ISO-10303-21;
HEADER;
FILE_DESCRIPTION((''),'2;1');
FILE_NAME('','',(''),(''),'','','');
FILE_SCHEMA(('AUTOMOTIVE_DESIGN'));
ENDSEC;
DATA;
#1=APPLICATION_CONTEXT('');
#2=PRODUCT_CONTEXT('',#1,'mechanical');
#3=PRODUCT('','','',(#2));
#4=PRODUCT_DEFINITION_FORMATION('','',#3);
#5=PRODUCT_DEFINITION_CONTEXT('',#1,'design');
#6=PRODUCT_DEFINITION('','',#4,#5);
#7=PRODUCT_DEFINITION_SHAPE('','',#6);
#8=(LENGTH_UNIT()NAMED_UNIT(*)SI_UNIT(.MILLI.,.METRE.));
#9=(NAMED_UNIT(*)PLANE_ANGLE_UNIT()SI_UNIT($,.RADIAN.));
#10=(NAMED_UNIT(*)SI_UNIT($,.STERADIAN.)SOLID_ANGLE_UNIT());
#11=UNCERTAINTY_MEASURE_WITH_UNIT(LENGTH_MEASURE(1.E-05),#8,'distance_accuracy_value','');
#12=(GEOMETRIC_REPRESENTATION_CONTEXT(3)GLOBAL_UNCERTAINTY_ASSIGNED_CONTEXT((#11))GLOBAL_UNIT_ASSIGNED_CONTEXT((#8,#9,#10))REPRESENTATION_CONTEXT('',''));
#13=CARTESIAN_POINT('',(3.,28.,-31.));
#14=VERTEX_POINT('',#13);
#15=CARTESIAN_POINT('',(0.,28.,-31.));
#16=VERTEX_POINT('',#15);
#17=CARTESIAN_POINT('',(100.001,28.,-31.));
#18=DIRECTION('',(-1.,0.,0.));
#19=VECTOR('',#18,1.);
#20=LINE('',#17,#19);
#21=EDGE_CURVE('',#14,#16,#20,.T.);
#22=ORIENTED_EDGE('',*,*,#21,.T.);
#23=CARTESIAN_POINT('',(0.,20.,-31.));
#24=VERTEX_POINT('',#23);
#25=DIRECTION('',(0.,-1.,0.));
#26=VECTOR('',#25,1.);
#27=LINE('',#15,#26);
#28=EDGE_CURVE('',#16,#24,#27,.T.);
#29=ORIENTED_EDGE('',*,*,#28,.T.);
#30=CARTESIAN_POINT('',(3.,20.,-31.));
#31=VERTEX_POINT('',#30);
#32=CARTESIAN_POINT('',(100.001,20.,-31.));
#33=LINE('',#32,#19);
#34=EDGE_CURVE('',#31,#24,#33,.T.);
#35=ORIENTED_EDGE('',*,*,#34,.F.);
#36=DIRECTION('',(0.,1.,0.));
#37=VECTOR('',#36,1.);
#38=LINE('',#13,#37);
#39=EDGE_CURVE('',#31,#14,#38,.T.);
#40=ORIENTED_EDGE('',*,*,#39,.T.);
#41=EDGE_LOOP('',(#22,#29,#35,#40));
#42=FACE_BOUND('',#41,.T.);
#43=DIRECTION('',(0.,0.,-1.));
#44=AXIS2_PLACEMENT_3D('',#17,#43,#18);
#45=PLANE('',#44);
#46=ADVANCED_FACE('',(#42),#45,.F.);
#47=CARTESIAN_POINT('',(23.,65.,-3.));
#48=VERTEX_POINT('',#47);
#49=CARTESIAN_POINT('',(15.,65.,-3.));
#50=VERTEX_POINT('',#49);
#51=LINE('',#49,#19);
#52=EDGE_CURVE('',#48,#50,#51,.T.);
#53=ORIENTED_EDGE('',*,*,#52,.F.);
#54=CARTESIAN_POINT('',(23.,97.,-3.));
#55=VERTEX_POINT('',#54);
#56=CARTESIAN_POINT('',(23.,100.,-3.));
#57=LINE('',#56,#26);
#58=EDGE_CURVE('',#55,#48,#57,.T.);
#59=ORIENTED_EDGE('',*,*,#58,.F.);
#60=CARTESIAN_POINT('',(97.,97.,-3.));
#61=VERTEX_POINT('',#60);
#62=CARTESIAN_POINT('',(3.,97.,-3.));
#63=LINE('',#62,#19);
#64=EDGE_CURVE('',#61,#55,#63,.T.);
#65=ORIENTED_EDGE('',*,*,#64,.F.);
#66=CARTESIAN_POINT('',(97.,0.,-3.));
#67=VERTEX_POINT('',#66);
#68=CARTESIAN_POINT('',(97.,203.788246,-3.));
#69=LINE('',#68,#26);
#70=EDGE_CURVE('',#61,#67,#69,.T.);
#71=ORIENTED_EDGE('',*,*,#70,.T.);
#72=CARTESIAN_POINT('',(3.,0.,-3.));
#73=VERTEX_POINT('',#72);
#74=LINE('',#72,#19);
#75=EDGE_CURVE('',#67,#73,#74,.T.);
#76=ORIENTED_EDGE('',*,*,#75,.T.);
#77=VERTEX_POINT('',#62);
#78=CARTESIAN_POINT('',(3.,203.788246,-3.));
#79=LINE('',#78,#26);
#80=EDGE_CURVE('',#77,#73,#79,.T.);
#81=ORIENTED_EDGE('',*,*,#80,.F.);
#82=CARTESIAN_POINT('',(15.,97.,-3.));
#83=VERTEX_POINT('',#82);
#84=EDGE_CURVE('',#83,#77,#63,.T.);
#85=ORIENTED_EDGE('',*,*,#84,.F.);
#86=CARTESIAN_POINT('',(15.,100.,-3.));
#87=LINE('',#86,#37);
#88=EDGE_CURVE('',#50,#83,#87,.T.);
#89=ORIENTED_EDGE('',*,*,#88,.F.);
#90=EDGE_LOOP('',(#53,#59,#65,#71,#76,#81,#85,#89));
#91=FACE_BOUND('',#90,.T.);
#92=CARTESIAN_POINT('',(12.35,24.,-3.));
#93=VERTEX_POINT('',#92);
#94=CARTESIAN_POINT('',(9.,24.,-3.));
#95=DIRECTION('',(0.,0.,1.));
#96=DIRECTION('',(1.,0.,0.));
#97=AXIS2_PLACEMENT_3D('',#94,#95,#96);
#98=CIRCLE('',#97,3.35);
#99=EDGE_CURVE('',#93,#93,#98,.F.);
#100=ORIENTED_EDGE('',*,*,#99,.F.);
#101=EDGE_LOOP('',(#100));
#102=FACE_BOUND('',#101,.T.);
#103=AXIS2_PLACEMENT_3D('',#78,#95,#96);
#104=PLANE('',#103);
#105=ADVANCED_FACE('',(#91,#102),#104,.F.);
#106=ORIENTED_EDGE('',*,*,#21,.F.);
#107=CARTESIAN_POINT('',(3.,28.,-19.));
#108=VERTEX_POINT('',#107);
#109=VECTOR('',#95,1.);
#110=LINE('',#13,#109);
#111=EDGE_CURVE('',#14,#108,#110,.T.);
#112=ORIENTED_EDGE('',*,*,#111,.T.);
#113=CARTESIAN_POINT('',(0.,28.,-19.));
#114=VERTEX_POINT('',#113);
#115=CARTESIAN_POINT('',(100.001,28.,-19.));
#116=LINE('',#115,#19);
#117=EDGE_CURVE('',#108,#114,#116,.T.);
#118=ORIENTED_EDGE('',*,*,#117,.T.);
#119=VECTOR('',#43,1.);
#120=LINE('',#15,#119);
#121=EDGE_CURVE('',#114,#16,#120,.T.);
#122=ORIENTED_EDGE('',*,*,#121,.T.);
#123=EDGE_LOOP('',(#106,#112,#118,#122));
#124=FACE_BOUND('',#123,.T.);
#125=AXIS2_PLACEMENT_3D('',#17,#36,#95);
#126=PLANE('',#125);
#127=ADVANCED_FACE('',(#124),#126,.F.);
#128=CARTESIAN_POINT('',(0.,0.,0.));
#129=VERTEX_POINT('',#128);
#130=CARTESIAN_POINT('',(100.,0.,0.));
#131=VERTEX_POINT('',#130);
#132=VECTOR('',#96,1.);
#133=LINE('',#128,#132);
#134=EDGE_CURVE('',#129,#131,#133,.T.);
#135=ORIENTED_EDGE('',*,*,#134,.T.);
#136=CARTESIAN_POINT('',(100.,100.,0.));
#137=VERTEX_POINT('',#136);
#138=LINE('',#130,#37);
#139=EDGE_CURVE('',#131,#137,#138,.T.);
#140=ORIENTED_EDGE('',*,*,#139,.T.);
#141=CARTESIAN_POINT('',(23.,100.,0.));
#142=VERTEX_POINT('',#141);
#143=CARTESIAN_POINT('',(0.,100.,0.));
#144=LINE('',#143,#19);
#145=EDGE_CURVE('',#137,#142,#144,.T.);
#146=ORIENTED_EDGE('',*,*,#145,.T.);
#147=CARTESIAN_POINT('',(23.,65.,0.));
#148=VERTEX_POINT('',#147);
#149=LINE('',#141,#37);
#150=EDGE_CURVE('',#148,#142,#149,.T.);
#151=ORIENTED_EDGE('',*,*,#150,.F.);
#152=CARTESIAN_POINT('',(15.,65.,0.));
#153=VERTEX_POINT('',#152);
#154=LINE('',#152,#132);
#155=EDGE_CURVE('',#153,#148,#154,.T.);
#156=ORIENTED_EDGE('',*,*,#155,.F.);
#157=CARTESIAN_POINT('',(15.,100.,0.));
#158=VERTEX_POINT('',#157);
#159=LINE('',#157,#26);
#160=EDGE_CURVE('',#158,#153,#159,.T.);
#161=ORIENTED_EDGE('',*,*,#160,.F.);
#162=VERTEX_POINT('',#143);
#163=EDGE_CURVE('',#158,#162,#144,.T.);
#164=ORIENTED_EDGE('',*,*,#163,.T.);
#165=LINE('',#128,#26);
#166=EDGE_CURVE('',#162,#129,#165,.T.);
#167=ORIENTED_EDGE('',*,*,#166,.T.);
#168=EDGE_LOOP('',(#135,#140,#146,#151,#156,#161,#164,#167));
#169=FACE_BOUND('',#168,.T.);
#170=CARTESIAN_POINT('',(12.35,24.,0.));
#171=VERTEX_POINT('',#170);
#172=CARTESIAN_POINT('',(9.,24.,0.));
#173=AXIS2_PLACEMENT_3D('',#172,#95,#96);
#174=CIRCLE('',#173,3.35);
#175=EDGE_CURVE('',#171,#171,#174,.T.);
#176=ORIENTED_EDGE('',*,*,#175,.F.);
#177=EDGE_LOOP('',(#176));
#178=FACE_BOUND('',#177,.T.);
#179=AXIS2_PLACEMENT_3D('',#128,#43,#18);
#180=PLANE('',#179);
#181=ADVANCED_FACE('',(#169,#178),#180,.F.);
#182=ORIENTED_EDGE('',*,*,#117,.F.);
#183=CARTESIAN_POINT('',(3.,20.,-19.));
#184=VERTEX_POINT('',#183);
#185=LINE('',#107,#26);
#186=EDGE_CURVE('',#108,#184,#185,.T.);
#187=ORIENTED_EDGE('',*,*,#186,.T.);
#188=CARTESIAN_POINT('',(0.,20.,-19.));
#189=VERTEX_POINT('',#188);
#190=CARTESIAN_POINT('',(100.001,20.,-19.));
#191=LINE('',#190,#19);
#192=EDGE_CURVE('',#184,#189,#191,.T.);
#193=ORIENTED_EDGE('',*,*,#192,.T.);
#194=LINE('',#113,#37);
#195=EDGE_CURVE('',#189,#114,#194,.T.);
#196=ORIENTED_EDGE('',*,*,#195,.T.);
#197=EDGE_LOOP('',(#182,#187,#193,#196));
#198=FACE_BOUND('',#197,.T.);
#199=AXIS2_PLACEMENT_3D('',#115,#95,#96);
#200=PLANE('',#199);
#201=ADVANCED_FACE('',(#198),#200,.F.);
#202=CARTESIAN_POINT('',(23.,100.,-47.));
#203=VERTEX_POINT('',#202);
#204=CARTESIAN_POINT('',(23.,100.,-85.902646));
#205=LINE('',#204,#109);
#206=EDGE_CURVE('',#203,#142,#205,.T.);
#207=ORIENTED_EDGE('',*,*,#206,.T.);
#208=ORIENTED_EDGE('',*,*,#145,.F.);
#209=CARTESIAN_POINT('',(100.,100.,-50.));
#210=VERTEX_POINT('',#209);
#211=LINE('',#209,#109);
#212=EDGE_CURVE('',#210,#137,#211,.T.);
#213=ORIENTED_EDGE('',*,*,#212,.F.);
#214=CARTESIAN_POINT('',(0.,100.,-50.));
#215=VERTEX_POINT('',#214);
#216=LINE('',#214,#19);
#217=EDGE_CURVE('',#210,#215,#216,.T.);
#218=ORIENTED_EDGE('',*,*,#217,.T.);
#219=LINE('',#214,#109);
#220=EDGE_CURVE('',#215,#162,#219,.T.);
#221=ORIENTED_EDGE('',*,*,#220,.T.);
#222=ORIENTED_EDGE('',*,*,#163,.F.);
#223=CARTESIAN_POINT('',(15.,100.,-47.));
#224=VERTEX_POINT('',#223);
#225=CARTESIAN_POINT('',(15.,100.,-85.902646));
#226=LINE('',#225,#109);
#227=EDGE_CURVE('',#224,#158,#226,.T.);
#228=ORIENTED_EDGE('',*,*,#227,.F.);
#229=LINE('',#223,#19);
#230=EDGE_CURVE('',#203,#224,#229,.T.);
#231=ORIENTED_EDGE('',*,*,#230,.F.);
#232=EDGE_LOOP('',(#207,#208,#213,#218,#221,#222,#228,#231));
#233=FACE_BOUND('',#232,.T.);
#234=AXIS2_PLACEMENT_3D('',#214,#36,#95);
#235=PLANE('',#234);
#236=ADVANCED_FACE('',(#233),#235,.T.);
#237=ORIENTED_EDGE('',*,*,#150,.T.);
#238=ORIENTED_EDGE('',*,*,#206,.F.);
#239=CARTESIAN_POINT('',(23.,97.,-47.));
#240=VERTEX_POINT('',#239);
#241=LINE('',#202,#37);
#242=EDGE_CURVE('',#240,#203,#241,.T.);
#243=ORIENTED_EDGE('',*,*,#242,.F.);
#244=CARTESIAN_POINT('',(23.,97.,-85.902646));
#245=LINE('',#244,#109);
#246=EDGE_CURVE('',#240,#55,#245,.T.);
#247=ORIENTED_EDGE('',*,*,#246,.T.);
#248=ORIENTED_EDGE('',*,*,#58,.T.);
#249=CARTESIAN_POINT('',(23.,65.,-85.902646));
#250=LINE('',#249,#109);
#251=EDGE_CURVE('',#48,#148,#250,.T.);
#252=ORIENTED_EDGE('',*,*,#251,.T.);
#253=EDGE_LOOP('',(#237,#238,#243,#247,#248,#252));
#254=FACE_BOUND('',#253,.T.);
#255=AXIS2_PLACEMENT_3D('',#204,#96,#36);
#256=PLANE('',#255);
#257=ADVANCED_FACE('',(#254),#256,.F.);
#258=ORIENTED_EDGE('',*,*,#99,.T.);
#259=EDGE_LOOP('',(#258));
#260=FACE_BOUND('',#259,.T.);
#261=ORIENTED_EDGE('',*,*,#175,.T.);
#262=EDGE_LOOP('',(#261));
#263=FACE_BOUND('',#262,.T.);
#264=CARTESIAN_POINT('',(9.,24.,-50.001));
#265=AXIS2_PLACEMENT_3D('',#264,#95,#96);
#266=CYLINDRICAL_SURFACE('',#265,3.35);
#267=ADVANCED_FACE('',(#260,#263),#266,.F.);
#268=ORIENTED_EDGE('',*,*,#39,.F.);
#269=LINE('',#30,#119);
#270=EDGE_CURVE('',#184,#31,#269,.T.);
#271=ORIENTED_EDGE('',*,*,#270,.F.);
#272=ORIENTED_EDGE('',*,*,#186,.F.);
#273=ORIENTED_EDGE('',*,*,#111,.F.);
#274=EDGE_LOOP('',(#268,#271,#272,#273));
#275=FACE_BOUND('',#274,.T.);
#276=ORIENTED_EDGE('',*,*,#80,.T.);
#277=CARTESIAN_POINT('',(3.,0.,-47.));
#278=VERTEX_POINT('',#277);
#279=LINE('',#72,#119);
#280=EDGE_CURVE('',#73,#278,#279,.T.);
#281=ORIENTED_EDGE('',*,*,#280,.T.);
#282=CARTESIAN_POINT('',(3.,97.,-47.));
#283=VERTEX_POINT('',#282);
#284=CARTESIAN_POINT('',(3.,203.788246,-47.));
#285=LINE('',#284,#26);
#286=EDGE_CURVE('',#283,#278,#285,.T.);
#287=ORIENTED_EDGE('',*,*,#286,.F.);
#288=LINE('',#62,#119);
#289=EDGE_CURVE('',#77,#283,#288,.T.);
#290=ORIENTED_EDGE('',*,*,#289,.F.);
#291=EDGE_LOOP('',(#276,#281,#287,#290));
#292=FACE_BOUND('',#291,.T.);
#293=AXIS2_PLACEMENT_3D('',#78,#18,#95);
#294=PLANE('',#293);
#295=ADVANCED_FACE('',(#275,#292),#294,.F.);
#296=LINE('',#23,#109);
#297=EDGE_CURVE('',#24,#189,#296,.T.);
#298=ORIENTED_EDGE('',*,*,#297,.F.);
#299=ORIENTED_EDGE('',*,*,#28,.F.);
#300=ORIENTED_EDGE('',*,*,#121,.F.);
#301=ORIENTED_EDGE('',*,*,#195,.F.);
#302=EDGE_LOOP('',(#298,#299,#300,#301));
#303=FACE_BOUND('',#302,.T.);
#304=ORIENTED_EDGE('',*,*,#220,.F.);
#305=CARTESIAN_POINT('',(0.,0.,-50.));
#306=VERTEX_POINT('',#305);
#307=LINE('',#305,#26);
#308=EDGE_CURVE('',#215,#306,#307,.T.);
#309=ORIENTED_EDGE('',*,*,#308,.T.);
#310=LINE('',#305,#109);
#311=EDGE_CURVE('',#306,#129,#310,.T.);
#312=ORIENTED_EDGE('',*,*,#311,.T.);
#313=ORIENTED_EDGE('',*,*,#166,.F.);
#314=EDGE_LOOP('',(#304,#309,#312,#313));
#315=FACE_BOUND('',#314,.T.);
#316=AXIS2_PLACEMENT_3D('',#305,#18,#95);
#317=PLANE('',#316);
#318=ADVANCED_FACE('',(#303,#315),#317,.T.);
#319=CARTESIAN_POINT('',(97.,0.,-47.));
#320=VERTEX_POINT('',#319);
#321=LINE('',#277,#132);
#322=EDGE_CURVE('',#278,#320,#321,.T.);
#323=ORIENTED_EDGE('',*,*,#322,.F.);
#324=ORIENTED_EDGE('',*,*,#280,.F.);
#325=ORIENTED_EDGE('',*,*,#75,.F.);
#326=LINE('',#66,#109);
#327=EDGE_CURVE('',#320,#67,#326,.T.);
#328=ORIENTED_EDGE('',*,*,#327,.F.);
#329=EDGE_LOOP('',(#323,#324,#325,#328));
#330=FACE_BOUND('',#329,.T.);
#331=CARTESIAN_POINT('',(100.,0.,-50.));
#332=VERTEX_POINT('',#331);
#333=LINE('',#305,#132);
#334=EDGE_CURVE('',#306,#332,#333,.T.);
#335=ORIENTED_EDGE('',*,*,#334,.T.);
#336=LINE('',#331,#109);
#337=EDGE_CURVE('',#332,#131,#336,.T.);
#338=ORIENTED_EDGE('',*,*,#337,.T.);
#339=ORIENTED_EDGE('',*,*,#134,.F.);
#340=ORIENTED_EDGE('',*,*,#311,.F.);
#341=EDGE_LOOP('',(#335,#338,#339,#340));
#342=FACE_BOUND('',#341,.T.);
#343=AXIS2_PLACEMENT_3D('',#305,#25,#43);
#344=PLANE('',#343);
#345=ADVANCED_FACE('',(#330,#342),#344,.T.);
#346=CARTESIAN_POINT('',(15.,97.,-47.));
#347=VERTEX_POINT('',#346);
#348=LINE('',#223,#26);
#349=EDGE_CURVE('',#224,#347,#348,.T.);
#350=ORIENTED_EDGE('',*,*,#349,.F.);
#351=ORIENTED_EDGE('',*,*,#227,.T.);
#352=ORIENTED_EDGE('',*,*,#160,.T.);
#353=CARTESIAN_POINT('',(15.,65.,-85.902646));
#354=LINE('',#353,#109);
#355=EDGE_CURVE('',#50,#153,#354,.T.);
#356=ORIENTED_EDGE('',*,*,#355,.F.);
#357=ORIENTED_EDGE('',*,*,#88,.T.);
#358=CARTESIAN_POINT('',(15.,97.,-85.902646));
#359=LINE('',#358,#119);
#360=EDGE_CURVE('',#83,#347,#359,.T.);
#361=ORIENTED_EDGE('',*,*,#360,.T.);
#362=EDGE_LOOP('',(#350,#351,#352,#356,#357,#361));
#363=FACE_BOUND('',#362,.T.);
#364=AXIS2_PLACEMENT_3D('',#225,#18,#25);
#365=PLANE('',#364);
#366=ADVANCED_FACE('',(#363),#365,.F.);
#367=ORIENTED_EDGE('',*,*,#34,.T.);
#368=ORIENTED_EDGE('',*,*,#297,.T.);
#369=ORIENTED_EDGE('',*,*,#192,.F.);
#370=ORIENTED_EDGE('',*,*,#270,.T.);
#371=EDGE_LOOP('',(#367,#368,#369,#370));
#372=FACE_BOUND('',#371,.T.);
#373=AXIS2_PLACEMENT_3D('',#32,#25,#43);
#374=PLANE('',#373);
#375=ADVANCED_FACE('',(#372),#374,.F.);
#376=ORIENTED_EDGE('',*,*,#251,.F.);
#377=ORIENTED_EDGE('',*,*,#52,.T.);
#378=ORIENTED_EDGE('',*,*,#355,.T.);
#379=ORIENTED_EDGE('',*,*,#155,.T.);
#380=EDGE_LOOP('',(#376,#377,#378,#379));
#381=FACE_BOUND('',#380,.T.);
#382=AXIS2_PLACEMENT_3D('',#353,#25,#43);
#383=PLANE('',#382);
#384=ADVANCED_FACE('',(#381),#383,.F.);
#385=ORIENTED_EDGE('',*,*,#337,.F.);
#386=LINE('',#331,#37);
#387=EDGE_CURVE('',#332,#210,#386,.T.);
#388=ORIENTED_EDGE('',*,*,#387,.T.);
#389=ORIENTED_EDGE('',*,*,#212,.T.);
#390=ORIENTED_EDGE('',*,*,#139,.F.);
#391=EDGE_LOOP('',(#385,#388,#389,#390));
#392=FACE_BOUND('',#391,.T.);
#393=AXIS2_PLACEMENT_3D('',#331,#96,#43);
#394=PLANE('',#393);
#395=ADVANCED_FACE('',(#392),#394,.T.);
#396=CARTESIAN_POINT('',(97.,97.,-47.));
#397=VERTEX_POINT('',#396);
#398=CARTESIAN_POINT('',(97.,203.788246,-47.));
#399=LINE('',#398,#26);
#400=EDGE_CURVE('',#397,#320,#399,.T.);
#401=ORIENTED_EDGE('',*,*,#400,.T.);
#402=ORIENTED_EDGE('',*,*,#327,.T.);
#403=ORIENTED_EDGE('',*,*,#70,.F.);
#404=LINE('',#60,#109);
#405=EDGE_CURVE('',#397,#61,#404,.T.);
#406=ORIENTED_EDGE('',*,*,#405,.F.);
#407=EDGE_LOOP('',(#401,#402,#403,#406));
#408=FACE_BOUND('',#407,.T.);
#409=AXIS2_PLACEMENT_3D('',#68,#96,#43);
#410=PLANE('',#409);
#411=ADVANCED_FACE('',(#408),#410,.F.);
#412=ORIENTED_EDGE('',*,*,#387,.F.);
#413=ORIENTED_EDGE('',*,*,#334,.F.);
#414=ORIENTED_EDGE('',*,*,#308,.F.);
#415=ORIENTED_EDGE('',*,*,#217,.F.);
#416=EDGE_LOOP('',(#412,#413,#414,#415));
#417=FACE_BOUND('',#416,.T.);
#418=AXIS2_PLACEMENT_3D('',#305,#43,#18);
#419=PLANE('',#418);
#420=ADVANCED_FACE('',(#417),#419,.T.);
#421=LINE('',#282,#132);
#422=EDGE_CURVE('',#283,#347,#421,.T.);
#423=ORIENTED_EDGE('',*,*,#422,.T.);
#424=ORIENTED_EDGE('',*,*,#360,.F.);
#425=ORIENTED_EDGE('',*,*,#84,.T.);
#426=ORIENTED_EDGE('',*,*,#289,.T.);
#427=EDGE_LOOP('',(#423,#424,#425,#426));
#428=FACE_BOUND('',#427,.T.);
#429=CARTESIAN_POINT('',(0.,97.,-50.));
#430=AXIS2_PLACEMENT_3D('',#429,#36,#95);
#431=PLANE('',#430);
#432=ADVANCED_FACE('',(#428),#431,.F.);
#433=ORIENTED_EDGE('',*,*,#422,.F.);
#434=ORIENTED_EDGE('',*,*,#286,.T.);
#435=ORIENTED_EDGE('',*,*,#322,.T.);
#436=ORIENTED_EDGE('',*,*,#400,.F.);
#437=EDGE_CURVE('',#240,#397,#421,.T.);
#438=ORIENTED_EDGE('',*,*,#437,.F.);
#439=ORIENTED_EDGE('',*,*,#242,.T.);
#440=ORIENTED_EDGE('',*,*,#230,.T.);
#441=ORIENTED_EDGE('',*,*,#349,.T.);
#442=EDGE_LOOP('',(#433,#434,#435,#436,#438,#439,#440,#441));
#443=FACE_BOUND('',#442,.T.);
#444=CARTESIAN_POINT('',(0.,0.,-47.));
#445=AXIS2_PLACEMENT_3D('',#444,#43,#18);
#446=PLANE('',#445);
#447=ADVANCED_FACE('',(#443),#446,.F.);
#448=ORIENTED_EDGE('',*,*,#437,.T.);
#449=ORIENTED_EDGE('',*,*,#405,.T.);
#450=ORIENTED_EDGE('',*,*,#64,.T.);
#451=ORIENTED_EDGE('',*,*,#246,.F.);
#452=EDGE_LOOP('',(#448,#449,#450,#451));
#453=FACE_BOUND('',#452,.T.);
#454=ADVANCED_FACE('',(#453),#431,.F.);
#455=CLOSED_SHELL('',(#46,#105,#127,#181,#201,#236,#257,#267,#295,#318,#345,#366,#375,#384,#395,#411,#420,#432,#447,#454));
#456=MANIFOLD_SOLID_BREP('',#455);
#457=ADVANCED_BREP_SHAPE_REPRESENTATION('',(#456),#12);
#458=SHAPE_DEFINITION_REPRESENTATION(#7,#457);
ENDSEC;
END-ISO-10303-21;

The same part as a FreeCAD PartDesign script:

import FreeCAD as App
import Part
import Sketcher
from FreeCAD import Vector
Q = App.Units.Quantity


def add_polygon(sketch, points):
    """Adds a closed chain of lines whose ends are joined by coincident constraints."""
    first, n = sketch.GeometryCount, len(points)
    for a, b in zip(points, points[1:] + points[:1]):
        sketch.addGeometry(Part.LineSegment(App.Vector(*a, 0), App.Vector(*b, 0)), False)
    for i in range(n):
        sketch.addConstraint(Sketcher.Constraint("Coincident", first + i, 2, first + (i + 1) % n, 1))

doc = App.newDocument("Part")
body = doc.addObject("PartDesign::Body", "Body")

# Sketch on XY plane
sketch1 = body.newObject("Sketcher::SketchObject", "Sketch")
sketch1.AttachmentSupport = (doc.getObject("XY_Plane"), [""])
sketch1.MapMode = "FlatFace"
add_polygon(sketch1, [(0, 100), (0, 0), (100, 0), (100, 100)])  # lines 0-3
sketch1.addConstraint(Sketcher.Constraint("Vertical", 0))
sketch1.addConstraint(Sketcher.Constraint("Horizontal", 1))
sketch1.addConstraint(Sketcher.Constraint("Vertical", 2))
sketch1.addConstraint(Sketcher.Constraint("Horizontal", 3))
sketch1.addConstraint(Sketcher.Constraint("Coincident", 0, 2, -1, 1))
sketch1.addConstraint(Sketcher.Constraint("Equal", 3, 0))
sketch1.addConstraint(Sketcher.Constraint("DistanceX", 1, 1, 1, 2, Q("100 mm")))
pad1 = body.newObject("PartDesign::Pad", "Pad")
pad1.Profile = sketch1
pad1.Length = 50
pad1.Reversed = True

# Sketch on XY plane
sketch2 = body.newObject("Sketcher::SketchObject", "Sketch001")
sketch2.AttachmentSupport = (doc.getObject("XY_Plane"), [""])
sketch2.MapMode = "FlatFace"
add_polygon(sketch2, [(15, 100), (15, 65), (23, 65), (23, 100)])  # lines 0-3
sketch2.addConstraint(Sketcher.Constraint("Vertical", 0))
sketch2.addConstraint(Sketcher.Constraint("Horizontal", 1))
sketch2.addConstraint(Sketcher.Constraint("Vertical", 2))
sketch2.addConstraint(Sketcher.Constraint("Horizontal", 3))
sketch2.addConstraint(Sketcher.Constraint("DistanceX", 1, 1, 1, 2, Q("8 mm")))
sketch2.addConstraint(Sketcher.Constraint("DistanceY", 0, 2, 0, 1, Q("35 mm")))
sketch2.addConstraint(Sketcher.Constraint("DistanceX", -1, 1, 0, 2, Q("15 mm")))
sketch2.addConstraint(Sketcher.Constraint("DistanceY", -1, 1, 0, 2, Q("65 mm")))
pocket1 = body.newObject("PartDesign::Pocket", "Pocket")
pocket1.Profile = sketch2
pocket1.Length = 47

# Sketch on XZ plane
sketch3 = body.newObject("Sketcher::SketchObject", "Sketch002")
sketch3.AttachmentSupport = (doc.getObject("XZ_Plane"), [""])
sketch3.MapMode = "FlatFace"
add_polygon(sketch3, [(3, -3), (3, -47), (97, -47), (97, -3)])  # lines 0-3
sketch3.addConstraint(Sketcher.Constraint("Vertical", 0))
sketch3.addConstraint(Sketcher.Constraint("Horizontal", 1))
sketch3.addConstraint(Sketcher.Constraint("Vertical", 2))
sketch3.addConstraint(Sketcher.Constraint("Horizontal", 3))
sketch3.addConstraint(Sketcher.Constraint("DistanceX", 1, 1, 1, 2, Q("94 mm")))
sketch3.addConstraint(Sketcher.Constraint("DistanceY", 0, 2, 0, 1, Q("44 mm")))
sketch3.addConstraint(Sketcher.Constraint("DistanceX", -1, 1, 0, 2, Q("3 mm")))
sketch3.addConstraint(Sketcher.Constraint("DistanceY", 0, 2, -1, 1, Q("47 mm")))
pocket2 = body.newObject("PartDesign::Pocket", "Pocket001")
pocket2.Profile = sketch3
pocket2.Length = 97

# Sketch on YZ plane
sketch4 = body.newObject("Sketcher::SketchObject", "Sketch003")
sketch4.AttachmentSupport = (doc.getObject("YZ_Plane"), [""])
sketch4.MapMode = "FlatFace"
add_polygon(sketch4, [(28, -31), (20, -31), (20, -19), (28, -19)])  # lines 0-3
sketch4.addConstraint(Sketcher.Constraint("Horizontal", 0))
sketch4.addConstraint(Sketcher.Constraint("Vertical", 1))
sketch4.addConstraint(Sketcher.Constraint("Horizontal", 2))
sketch4.addConstraint(Sketcher.Constraint("Vertical", 3))
sketch4.addConstraint(Sketcher.Constraint("DistanceX", 0, 2, 0, 1, Q("8 mm")))
sketch4.addConstraint(Sketcher.Constraint("DistanceY", 1, 1, 1, 2, Q("12 mm")))
sketch4.addConstraint(Sketcher.Constraint("DistanceX", -1, 1, 0, 2, Q("20 mm")))
sketch4.addConstraint(Sketcher.Constraint("DistanceY", 0, 2, -1, 1, Q("31 mm")))
pocket3 = body.newObject("PartDesign::Pocket", "Pocket002")
pocket3.Profile = sketch4
pocket3.Type = "UpToFirst"
pocket3.Reversed = True

# Sketch on XY plane
sketch5 = body.newObject("Sketcher::SketchObject", "Sketch004")
sketch5.AttachmentSupport = (doc.getObject("XY_Plane"), [""])
sketch5.MapMode = "FlatFace"
sketch5.addGeometry(Part.Circle(Vector(9, 24, 0), Vector(0, 0, 1), 3.35), False)
sketch5.addConstraint(Sketcher.Constraint("Diameter", 0, Q("6.7 mm")))
sketch5.addConstraint(Sketcher.Constraint("DistanceX", -1, 1, 0, 3, Q("9 mm")))
sketch5.addConstraint(Sketcher.Constraint("DistanceY", -1, 1, 0, 3, Q("24 mm")))
pocket4 = body.newObject("PartDesign::Pocket", "Pocket003")
pocket4.Profile = sketch5
pocket4.Type = "UpToFirst"

doc.recompute()
